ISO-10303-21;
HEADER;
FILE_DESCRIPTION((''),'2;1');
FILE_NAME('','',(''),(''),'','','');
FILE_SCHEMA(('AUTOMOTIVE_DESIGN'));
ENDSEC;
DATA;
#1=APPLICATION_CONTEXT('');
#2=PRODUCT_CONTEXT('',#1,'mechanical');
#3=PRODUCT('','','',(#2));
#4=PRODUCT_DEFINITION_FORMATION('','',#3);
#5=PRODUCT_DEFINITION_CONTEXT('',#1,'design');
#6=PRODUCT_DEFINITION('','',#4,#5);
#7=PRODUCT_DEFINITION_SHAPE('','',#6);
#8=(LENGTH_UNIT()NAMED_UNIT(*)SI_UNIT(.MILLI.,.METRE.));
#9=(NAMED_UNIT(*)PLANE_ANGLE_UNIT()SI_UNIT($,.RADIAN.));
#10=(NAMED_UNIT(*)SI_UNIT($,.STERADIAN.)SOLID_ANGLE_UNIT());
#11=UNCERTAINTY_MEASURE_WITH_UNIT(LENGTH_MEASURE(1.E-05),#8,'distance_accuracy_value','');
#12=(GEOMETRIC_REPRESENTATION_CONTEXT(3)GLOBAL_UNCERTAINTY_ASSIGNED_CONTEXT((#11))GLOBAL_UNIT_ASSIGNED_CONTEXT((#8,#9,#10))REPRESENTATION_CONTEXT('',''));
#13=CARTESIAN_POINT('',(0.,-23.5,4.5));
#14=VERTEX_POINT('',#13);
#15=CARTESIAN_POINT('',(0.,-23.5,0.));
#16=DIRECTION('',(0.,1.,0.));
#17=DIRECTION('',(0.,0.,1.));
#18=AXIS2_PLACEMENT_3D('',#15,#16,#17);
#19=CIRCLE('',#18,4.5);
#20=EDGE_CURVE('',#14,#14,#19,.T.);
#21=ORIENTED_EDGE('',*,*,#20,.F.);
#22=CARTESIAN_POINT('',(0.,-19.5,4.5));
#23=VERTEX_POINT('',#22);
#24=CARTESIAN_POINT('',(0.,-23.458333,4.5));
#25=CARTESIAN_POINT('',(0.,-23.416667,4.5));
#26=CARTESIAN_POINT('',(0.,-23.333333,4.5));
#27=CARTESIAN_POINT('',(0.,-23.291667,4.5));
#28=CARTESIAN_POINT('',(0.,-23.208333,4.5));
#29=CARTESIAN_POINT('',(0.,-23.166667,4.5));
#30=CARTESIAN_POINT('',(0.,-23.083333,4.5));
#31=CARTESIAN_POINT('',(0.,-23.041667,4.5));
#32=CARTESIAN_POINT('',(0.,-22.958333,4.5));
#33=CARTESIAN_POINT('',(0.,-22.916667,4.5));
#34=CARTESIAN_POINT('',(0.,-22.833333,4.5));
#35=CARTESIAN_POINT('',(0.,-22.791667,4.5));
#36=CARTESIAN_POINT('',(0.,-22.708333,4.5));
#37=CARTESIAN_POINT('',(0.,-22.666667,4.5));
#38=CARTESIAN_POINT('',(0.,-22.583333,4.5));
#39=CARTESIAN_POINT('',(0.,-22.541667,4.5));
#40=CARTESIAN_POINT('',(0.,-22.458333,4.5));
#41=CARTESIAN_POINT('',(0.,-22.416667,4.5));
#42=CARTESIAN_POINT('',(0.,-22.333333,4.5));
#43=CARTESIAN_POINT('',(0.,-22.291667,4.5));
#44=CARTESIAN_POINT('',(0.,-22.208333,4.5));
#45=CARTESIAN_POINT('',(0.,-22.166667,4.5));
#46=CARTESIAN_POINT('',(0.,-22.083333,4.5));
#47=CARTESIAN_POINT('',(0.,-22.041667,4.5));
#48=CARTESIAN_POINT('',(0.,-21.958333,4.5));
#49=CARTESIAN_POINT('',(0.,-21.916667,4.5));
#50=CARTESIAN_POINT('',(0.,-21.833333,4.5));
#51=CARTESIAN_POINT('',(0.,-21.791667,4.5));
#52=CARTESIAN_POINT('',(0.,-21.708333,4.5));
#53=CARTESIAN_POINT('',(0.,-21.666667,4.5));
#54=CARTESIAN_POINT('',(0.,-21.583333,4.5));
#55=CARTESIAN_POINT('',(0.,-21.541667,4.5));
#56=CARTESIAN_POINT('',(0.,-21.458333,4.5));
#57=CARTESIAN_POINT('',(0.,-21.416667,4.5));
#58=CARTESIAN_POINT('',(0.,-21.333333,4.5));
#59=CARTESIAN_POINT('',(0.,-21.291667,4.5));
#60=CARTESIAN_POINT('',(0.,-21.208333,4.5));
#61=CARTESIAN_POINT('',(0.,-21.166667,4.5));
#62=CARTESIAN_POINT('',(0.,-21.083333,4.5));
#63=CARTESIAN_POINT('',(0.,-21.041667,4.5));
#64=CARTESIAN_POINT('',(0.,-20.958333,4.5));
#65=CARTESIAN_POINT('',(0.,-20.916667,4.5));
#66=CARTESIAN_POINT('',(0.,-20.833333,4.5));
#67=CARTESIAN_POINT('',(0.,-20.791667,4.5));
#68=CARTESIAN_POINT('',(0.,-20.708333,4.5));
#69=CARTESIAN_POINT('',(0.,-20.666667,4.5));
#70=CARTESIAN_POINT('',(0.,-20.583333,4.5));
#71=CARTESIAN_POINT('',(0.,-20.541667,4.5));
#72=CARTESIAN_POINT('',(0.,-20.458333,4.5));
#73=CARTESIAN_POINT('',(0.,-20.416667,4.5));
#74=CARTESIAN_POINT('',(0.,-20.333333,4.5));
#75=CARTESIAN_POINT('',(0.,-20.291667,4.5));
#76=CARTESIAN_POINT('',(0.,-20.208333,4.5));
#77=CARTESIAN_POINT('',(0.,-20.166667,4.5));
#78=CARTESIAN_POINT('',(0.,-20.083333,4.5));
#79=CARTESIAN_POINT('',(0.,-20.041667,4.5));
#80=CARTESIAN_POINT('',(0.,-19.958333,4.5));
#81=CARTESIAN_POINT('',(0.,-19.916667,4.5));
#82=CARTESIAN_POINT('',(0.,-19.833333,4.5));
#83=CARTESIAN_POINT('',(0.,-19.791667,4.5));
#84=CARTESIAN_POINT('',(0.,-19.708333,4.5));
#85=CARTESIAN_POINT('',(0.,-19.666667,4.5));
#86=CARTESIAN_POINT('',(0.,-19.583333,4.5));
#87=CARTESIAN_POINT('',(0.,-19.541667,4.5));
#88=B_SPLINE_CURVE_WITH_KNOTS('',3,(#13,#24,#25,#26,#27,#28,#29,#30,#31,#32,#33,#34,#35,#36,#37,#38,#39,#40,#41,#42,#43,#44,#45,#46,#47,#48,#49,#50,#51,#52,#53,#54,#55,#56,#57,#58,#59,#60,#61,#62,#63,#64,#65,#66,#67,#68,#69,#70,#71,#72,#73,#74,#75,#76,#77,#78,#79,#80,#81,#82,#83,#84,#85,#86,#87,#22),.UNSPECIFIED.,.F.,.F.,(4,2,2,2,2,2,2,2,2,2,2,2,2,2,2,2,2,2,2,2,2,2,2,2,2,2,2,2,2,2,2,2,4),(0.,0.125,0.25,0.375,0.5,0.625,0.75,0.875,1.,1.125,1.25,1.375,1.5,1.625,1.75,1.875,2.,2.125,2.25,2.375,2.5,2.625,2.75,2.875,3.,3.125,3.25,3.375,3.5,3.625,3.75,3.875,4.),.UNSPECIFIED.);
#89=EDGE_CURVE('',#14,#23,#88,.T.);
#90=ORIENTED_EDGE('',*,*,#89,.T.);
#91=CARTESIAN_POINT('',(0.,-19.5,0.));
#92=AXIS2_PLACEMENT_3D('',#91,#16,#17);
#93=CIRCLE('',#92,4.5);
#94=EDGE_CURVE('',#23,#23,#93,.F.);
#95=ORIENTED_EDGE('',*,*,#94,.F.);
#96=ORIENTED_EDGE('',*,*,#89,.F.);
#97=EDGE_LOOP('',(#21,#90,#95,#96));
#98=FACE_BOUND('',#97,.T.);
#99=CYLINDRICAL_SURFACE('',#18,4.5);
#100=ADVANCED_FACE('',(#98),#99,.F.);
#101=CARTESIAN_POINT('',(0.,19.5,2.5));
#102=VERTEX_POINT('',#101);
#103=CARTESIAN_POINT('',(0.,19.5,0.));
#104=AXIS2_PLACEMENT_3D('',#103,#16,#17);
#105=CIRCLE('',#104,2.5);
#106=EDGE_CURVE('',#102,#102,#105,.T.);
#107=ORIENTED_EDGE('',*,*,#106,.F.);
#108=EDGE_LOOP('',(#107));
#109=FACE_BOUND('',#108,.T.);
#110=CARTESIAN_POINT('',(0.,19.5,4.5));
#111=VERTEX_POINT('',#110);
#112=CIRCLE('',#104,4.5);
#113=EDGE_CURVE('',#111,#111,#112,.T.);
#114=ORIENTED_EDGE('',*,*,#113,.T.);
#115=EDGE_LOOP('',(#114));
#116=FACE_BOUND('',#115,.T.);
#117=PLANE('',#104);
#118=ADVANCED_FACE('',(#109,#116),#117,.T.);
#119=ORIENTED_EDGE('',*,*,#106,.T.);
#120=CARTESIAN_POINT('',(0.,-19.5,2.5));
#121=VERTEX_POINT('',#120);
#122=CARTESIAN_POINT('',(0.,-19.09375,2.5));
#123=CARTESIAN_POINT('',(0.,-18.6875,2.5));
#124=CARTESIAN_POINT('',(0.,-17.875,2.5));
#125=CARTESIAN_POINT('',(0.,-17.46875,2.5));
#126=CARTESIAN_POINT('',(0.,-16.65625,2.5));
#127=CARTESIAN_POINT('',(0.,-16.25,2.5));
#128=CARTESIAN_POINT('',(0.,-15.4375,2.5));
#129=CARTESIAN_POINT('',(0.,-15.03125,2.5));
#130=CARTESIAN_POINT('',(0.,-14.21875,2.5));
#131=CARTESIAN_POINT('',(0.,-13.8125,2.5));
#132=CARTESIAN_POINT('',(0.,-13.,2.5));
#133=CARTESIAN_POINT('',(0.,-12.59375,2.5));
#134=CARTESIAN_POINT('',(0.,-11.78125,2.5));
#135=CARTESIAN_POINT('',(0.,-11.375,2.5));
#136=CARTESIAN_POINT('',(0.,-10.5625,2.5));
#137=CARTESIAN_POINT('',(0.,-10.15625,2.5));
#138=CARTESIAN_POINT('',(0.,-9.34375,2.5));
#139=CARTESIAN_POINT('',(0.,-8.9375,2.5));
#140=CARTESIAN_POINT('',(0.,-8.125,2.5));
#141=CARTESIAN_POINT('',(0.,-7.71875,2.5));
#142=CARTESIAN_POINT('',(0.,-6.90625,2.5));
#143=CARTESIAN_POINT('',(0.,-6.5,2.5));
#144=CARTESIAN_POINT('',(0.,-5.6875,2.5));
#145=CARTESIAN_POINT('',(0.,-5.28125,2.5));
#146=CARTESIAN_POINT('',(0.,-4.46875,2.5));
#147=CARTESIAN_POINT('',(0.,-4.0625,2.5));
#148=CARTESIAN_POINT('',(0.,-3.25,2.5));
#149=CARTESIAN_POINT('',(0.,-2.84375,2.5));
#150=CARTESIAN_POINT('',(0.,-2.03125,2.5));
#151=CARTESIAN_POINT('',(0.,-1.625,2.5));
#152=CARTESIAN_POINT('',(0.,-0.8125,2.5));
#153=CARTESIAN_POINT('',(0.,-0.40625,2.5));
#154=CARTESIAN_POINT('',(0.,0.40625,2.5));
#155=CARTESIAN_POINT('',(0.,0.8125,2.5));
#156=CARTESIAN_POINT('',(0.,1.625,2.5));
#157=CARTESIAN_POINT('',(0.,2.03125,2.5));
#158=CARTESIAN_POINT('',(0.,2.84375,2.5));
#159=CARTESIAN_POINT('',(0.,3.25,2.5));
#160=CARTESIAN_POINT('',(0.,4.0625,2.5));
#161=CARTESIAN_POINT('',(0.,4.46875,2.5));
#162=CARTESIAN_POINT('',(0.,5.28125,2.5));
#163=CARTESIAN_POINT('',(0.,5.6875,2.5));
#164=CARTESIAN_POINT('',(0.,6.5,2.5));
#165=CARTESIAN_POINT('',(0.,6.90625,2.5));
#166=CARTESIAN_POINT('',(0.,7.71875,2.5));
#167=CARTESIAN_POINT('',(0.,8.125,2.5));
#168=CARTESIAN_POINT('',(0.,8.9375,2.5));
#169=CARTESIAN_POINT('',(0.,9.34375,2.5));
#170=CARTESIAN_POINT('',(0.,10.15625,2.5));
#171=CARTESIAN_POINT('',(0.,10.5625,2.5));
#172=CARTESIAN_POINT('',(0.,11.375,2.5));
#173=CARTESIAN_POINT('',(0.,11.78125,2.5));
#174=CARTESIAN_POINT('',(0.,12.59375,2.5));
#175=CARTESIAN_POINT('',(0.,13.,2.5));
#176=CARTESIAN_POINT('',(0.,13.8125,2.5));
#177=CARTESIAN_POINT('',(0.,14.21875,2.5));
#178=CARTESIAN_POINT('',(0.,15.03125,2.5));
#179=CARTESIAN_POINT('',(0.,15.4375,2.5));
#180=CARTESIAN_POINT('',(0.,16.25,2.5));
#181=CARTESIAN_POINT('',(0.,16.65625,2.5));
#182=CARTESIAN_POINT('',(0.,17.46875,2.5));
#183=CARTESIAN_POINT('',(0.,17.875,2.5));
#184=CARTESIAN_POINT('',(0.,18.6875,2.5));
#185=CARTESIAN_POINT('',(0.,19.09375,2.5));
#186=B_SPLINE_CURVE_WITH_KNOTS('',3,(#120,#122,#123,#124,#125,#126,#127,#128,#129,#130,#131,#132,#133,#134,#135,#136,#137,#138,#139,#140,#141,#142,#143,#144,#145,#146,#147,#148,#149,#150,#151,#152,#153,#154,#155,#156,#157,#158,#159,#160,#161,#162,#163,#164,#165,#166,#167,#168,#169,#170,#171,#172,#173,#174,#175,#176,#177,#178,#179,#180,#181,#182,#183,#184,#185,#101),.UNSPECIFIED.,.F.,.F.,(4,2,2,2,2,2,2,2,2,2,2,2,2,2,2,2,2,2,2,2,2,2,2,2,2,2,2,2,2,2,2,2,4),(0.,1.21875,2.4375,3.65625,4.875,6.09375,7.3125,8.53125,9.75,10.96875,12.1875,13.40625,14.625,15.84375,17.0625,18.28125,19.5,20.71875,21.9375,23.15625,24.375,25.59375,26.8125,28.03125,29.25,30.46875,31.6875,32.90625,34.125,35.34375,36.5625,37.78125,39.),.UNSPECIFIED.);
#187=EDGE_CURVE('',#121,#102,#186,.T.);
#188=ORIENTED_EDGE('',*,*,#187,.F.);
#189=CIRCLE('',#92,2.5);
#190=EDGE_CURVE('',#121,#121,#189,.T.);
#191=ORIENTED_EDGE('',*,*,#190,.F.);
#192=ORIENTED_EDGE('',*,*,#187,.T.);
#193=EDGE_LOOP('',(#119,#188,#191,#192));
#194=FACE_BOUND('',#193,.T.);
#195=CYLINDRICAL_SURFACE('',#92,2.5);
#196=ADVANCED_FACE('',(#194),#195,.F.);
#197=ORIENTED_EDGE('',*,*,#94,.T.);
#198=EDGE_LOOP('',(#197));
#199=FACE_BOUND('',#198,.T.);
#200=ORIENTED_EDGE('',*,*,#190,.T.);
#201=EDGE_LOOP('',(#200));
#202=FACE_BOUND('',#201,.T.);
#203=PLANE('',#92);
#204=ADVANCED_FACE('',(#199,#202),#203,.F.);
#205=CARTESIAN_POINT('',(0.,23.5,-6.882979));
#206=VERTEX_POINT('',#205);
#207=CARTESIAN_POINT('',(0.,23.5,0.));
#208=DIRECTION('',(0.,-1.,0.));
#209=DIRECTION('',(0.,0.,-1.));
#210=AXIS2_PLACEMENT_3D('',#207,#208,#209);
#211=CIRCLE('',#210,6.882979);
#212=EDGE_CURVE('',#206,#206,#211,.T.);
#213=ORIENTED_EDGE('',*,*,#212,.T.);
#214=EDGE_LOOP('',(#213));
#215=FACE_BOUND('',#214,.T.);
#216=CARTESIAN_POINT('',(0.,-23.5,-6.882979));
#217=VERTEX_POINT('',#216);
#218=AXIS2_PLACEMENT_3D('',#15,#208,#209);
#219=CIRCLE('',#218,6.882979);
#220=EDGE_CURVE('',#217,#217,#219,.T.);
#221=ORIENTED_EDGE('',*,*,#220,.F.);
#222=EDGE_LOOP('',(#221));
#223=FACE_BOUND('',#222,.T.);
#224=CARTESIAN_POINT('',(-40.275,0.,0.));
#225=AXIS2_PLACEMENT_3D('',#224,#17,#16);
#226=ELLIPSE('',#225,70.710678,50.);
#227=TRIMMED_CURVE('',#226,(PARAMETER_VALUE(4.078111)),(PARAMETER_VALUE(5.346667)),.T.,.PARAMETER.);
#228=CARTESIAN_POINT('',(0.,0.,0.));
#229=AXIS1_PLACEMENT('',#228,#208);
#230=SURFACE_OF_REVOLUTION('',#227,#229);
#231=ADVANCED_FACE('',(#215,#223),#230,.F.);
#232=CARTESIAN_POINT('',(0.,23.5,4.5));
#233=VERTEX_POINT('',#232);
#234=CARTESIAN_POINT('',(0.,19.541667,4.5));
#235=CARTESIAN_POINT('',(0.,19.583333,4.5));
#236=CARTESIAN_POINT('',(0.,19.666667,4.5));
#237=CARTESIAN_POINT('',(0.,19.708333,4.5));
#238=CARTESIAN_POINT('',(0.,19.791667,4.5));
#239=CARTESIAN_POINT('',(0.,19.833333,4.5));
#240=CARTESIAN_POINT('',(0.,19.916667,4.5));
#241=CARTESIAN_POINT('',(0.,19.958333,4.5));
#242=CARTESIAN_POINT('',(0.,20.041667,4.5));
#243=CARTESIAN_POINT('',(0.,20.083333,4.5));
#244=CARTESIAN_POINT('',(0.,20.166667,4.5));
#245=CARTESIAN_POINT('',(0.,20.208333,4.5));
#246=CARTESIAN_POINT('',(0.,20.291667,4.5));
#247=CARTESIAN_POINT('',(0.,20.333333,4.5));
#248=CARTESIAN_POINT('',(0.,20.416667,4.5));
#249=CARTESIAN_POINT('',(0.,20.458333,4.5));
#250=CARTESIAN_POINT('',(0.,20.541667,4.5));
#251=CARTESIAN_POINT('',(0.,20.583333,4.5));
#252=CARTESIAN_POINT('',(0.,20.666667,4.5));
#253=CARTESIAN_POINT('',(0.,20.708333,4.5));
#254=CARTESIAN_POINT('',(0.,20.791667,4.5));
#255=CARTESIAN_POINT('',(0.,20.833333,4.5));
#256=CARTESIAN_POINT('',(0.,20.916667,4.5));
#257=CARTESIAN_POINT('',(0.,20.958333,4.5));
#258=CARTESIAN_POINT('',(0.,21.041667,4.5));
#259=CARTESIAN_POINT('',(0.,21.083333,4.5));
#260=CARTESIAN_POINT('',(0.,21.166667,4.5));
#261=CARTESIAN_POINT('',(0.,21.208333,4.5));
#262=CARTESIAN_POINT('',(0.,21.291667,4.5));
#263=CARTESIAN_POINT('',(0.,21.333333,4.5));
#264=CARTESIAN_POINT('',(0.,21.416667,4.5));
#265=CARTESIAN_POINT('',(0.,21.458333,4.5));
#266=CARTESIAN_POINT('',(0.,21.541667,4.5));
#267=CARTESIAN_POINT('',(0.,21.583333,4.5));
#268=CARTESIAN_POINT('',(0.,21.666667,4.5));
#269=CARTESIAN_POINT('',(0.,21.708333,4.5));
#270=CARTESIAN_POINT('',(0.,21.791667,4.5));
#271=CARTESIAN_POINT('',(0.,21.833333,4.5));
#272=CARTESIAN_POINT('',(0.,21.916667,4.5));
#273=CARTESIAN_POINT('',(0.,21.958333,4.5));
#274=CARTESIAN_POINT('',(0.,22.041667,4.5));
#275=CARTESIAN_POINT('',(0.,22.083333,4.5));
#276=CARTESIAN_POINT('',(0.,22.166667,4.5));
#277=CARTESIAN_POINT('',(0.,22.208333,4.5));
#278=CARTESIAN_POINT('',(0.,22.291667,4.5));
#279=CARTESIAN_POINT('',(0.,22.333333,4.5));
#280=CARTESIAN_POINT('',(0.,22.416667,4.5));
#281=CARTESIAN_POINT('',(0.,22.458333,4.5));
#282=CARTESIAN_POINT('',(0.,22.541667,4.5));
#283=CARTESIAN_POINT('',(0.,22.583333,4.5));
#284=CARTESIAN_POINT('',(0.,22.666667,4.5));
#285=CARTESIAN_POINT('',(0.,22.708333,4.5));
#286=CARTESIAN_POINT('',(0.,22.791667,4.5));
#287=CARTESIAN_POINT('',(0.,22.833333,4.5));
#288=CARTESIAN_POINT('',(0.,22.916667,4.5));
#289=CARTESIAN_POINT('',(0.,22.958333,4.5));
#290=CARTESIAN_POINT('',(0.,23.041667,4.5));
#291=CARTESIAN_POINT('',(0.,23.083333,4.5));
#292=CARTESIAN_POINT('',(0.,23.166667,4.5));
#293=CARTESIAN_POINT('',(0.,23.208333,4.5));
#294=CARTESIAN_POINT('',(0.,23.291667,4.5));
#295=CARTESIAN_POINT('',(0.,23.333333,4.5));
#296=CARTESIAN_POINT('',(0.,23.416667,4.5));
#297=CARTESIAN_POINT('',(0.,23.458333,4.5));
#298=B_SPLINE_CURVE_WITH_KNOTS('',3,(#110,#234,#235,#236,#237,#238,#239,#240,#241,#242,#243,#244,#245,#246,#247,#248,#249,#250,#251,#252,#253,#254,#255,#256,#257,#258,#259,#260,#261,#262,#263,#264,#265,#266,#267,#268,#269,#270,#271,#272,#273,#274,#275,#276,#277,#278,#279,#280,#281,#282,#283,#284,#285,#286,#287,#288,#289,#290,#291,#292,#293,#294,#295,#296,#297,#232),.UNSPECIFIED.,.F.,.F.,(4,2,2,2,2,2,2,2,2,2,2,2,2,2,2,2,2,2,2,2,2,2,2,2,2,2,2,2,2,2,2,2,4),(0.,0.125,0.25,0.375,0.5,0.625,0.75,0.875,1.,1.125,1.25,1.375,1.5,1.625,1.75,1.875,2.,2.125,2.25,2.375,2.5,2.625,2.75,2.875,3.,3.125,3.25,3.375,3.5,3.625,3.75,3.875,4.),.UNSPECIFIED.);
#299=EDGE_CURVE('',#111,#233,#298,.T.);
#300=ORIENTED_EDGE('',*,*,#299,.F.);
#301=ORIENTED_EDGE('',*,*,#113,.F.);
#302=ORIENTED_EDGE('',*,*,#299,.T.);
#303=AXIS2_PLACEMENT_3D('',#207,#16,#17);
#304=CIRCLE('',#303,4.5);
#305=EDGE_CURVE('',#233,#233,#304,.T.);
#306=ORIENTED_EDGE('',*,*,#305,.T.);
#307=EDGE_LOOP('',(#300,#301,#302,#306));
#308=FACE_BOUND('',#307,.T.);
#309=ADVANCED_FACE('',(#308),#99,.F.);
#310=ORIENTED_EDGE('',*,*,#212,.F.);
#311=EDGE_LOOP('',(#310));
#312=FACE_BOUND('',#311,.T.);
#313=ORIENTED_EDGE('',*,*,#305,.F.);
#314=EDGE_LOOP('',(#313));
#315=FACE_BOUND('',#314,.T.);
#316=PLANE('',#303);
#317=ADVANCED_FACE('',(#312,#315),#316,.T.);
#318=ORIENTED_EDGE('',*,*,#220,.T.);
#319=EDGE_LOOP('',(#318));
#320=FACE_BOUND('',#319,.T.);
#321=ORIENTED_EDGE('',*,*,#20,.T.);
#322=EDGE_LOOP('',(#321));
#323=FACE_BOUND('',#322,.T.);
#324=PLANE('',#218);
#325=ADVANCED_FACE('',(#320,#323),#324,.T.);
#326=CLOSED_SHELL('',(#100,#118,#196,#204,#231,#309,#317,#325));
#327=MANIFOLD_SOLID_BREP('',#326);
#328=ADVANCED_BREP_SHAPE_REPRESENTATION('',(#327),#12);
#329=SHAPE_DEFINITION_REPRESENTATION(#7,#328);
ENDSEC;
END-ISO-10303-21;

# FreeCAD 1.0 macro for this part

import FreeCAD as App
import Part
import Sketcher

doc = App.newDocument("Part")
body = doc.addObject("PartDesign::Body", "Body")

sketch1 = body.newObject("Sketcher::SketchObject", "Sketch")
sketch1.AttachmentSupport = (doc.getObject("XY_Plane"), [""])
sketch1.MapMode = "FlatFace"
sketch1.addGeometry(Part.LineSegment(App.Vector(6.882979, 23.5, 0), App.Vector(0, 23.5, 0)), False)
sketch1.addGeometry(Part.LineSegment(App.Vector(0, 23.5, 0), App.Vector(0, -23.5, 0)), False)
sketch1.addGeometry(Part.LineSegment(App.Vector(0, -23.5, 0), App.Vector(6.882979, -23.5, 0)), False)
sketch1.addGeometry(Part.BSplineCurve([App.Vector(6.882979, -23.5, 0), App.Vector(12.738298, 0, 0), App.Vector(6.882979, 23.5, 0)], [3, 3], [4.373605266, 5.051172695], False, 2, [1, 0.943159584, 1], False), False)
sketch1.addConstraint(Sketcher.Constraint("Block", 3))
sketch1.addConstraint(Sketcher.Constraint("Coincident", 0, 2, 1, 1))
sketch1.addConstraint(Sketcher.Constraint("Coincident", 1, 2, 2, 1))
sketch1.addConstraint(Sketcher.Constraint("Coincident", 2, 2, 3, 1))
sketch1.addConstraint(Sketcher.Constraint("Coincident", 3, 2, 0, 1))
sketch1.addConstraint(Sketcher.Constraint("Horizontal", 0))
sketch1.addConstraint(Sketcher.Constraint("Vertical", 1))
sketch1.addConstraint(Sketcher.Constraint("Horizontal", 2))
sketch1.addConstraint(Sketcher.Constraint("PointOnObject", 0, 2, -2))
revolution = body.newObject("PartDesign::Revolution", "Revolution")
revolution.Profile = sketch1
revolution.ReferenceAxis = (sketch1, ["V_Axis"])
revolution.Angle = 360

sketch2 = body.newObject("Sketcher::SketchObject", "Sketch001")
sketch2.AttachmentSupport = (doc.getObject("XZ_Plane"), [""])
sketch2.MapMode = "FlatFace"
sketch2.AttachmentOffset = App.Placement(App.Vector(0, 0, -23.5), App.Rotation())
sketch2.addGeometry(Part.Circle(App.Vector(0, 0, 0), App.Vector(0, 0, 1), 4.5), False)
sketch2.addConstraint(Sketcher.Constraint("Coincident", 0, 3, -1, 1))
sketch2.addConstraint(Sketcher.Constraint("Diameter", 0, 9.0))
pocket1 = body.newObject("PartDesign::Pocket", "Pocket")
pocket1.Profile = sketch2
pocket1.Type = "ThroughAll"
pocket1.Reversed = True

sketch3 = body.newObject("Sketcher::SketchObject", "Sketch002")
sketch3.AttachmentSupport = (doc.getObject("XZ_Plane"), [""])
sketch3.MapMode = "FlatFace"
sketch3.addGeometry(Part.Circle(App.Vector(0, 0, 0), App.Vector(0, 0, 1), 4.5), False)
sketch3.addGeometry(Part.Circle(App.Vector(0, 0, 0), App.Vector(0, 0, 1), 2.5), False)
sketch3.addConstraint(Sketcher.Constraint("Coincident", 0, 3, -1, 1))
sketch3.addConstraint(Sketcher.Constraint("Coincident", 1, 3, -1, 1))
sketch3.addConstraint(Sketcher.Constraint("Diameter", 0, 9.0))
sketch3.addConstraint(Sketcher.Constraint("Diameter", 1, 5.0))
pad1 = body.newObject("PartDesign::Pad", "Pad")
pad1.Profile = sketch3
pad1.Type = "TwoLengths"
pad1.Length = 19.5
pad1.Length2 = 19.5
pad1.Reversed = True

doc.recompute()
